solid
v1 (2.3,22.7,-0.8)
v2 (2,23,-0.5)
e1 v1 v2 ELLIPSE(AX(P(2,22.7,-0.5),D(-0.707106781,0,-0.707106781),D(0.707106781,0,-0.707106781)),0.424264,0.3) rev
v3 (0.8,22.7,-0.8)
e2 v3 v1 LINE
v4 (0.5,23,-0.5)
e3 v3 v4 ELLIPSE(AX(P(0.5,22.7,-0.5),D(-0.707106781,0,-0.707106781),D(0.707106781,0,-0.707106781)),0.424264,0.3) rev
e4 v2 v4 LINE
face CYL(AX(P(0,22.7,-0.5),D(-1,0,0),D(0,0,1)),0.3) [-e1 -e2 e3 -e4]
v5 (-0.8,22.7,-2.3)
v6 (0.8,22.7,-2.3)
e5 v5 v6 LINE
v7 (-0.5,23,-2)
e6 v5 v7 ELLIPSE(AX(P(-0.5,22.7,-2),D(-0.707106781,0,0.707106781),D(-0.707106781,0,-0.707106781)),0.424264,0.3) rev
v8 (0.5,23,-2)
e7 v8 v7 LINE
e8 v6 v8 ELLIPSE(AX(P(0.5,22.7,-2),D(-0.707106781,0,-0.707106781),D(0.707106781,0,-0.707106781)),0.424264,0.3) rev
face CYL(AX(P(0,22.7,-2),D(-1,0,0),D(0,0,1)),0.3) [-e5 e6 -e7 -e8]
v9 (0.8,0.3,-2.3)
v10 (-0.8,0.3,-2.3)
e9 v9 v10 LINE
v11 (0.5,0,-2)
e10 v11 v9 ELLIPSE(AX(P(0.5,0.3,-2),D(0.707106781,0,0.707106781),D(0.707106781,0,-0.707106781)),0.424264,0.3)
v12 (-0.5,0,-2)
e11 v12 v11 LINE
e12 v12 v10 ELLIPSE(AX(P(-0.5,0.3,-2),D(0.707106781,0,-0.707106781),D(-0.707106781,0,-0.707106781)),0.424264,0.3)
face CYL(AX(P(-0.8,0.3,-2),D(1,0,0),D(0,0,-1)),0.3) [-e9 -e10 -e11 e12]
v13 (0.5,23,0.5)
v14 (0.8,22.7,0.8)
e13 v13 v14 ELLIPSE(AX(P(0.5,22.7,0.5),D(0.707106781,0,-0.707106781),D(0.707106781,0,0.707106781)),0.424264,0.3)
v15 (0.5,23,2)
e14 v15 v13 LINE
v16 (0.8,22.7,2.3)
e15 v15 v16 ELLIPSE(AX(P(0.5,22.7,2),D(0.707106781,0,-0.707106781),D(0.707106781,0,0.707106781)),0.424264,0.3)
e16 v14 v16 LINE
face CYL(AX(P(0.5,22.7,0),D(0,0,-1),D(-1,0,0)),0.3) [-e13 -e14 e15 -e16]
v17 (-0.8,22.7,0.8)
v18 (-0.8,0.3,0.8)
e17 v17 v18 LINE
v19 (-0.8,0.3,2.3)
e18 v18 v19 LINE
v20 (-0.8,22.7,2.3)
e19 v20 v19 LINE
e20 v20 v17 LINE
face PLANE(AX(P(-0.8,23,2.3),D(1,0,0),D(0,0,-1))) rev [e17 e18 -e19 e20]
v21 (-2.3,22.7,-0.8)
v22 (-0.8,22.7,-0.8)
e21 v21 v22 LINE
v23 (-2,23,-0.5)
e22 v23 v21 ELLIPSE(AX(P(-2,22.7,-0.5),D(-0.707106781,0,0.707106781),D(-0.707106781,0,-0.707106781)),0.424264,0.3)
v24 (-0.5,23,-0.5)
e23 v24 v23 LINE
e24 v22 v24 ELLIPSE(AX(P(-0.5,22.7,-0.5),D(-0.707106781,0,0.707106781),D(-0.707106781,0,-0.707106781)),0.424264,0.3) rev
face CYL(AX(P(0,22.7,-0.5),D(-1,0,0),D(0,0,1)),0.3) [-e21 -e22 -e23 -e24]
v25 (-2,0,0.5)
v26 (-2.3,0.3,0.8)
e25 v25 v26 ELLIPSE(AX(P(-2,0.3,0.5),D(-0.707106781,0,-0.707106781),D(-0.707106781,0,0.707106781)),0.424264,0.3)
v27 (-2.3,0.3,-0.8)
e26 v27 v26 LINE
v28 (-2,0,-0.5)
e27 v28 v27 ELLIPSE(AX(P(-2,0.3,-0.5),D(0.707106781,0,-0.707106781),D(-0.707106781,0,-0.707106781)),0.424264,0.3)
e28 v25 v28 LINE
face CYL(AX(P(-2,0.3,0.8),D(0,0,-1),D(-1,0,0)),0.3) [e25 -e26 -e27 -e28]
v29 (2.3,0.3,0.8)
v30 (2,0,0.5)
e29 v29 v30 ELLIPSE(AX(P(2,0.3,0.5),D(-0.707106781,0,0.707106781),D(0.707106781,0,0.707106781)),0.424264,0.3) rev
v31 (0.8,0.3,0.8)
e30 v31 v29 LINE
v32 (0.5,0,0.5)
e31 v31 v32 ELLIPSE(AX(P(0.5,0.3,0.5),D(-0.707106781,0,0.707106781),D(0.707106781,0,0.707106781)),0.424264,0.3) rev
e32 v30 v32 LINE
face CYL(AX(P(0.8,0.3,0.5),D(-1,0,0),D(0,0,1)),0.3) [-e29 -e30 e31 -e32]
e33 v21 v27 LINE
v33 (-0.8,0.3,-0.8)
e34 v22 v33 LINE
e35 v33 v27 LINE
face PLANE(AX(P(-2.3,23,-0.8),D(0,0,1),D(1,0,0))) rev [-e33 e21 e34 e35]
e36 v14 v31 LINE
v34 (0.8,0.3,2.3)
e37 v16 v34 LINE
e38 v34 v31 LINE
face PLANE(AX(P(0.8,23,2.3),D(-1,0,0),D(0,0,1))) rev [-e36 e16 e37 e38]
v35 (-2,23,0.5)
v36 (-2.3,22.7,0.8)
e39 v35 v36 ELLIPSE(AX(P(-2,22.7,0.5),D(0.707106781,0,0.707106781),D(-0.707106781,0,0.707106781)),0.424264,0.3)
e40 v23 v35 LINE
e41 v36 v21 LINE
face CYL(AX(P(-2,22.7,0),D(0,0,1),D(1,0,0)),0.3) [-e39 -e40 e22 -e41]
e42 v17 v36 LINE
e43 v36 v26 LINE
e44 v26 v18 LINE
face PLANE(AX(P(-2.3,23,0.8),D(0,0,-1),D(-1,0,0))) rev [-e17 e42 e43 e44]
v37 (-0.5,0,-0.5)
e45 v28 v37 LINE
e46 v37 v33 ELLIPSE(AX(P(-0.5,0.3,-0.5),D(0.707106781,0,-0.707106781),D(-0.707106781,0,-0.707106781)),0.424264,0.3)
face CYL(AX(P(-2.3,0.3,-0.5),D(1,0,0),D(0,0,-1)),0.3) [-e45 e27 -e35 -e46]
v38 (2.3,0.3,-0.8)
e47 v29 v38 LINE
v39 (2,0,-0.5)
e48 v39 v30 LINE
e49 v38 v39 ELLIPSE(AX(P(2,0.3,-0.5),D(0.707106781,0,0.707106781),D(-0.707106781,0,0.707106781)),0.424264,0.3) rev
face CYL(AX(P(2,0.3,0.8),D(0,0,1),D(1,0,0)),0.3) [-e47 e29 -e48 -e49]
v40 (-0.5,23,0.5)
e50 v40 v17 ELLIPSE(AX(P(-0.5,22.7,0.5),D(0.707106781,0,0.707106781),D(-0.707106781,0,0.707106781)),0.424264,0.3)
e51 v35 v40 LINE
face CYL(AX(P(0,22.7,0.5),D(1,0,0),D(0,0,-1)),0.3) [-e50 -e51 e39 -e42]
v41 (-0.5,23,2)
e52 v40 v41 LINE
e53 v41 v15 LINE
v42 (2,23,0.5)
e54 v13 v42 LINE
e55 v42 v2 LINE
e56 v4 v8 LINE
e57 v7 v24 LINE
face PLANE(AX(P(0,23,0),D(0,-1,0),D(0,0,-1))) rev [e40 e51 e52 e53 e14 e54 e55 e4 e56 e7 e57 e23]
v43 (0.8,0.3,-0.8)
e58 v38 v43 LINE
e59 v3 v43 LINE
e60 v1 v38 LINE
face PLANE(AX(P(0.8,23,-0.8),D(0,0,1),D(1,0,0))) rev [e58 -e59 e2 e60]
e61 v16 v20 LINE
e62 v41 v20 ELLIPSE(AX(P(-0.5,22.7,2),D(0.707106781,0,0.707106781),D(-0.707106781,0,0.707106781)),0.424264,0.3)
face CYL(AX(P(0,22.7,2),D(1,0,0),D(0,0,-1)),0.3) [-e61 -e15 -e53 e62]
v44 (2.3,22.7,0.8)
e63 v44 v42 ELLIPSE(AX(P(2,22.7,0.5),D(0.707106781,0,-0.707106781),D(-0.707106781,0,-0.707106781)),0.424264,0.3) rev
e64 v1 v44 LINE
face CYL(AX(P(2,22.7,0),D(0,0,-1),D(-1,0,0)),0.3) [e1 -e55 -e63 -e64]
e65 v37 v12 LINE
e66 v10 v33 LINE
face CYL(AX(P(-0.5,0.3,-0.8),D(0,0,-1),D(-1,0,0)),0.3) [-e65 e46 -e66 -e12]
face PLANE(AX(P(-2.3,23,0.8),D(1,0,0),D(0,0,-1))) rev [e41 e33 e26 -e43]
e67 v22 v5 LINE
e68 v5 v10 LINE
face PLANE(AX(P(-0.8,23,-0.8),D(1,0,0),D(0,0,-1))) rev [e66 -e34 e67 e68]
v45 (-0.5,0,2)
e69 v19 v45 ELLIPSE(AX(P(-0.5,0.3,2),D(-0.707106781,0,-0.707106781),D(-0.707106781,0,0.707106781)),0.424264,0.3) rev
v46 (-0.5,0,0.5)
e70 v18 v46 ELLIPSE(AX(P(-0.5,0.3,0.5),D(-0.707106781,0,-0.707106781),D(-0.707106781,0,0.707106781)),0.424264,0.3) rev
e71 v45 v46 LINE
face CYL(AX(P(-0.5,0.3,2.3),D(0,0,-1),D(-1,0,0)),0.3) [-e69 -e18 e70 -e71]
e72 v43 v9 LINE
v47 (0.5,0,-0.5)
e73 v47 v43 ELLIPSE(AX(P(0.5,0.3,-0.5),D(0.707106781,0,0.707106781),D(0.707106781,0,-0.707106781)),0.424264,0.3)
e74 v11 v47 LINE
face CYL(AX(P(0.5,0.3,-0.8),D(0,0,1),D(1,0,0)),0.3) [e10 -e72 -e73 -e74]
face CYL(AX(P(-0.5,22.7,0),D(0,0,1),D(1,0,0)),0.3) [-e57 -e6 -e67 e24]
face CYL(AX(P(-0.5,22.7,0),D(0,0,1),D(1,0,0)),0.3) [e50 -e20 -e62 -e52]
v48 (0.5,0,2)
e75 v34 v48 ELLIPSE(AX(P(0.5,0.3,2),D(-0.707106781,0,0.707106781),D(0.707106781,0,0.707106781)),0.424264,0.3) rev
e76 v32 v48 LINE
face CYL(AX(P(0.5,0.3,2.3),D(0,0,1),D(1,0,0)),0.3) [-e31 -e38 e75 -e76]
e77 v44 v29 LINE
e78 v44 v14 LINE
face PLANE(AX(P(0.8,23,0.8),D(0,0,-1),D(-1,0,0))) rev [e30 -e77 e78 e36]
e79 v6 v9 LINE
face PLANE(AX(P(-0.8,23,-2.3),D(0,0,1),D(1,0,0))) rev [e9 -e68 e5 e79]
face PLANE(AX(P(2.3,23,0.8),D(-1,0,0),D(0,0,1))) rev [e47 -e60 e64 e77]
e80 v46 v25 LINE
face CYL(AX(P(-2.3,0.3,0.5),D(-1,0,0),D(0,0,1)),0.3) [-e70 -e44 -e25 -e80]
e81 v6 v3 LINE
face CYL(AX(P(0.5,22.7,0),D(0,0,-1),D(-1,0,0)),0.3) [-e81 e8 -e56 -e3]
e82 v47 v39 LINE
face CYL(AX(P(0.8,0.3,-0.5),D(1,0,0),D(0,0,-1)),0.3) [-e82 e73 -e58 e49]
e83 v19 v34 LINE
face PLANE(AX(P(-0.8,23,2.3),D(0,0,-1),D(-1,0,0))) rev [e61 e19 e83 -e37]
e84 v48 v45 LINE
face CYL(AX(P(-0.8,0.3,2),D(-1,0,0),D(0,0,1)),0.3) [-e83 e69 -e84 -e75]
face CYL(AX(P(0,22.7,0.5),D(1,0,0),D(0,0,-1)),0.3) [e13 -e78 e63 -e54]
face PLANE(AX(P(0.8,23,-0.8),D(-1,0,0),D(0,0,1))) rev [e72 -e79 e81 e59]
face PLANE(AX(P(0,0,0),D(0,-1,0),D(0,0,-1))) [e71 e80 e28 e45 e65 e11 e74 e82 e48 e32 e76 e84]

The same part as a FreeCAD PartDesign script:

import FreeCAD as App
import Part
import Sketcher
from FreeCAD import Vector
Q = App.Units.Quantity


def edges_at(feature, points):
    """Names of the edges that pass closest to the given points."""
    edges = feature.Shape.Edges
    near = lambda p: min(range(len(edges)), key=lambda i: edges[i].distToShape(Part.Vertex(*p))[0])
    return sorted({f"Edge{near(p) + 1}" for p in points})


def add_polygon(sketch, points):
    """Adds a closed chain of lines whose ends are joined by coincident constraints."""
    first, n = sketch.GeometryCount, len(points)
    for a, b in zip(points, points[1:] + points[:1]):
        sketch.addGeometry(Part.LineSegment(App.Vector(*a, 0), App.Vector(*b, 0)), False)
    for i in range(n):
        sketch.addConstraint(Sketcher.Constraint("Coincident", first + i, 2, first + (i + 1) % n, 1))

doc = App.newDocument("Part")
body = doc.addObject("PartDesign::Body", "Body")

# Sketch on XZ plane
sketch1 = body.newObject("Sketcher::SketchObject", "Sketch")
sketch1.AttachmentSupport = (doc.getObject("XZ_Plane"), [""])
sketch1.MapMode = "FlatFace"
add_polygon(sketch1, [(2.3, -0.8), (0.8, -0.8), (0.8, -2.3), (-0.8, -2.3), (-0.8, -0.8), (-2.3, -0.8), (-2.3, 0.8), (-0.8, 0.8), (-0.8, 2.3), (0.8, 2.3), (0.8, 0.8), (2.3, 0.8)])  # lines 0-11
sketch1.addConstraint([
    Sketcher.Constraint("Horizontal", 0),
    Sketcher.Constraint("Vertical", 1),
    Sketcher.Constraint("Horizontal", 2),
    Sketcher.Constraint("Vertical", 3),
    Sketcher.Constraint("Horizontal", 4),
    Sketcher.Constraint("Vertical", 5),
    Sketcher.Constraint("Horizontal", 6),
    Sketcher.Constraint("Vertical", 7),
    Sketcher.Constraint("Horizontal", 8),
    Sketcher.Constraint("Vertical", 9),
    Sketcher.Constraint("Horizontal", 10),
    Sketcher.Constraint("Vertical", 11),
    Sketcher.Constraint("Symmetric", 0, 2, 6, 2, -1, 1),
    Sketcher.Constraint("Symmetric", 2, 2, 8, 2, -1, 1),
    Sketcher.Constraint("Symmetric", 4, 2, 10, 2, -1, 1),
    Sketcher.Constraint("Symmetric", 0, 2, 3, 2, -2),
    Sketcher.Constraint("Equal", 10, 1),
    Sketcher.Constraint("Equal", 8, 5),
    Sketcher.Constraint("DistanceX", 0, 2, 0, 1, Q("1.5 mm")),
    Sketcher.Constraint("DistanceX", 2, 2, 2, 1, Q("1.6 mm")),
])
pad1 = body.newObject("PartDesign::Pad", "Pad")
pad1.Profile = sketch1
pad1.Length = 23
pad1.Reversed = True
doc.recompute()

fillet = body.newObject("PartDesign::Fillet", "Fillet")
fillet.Base = (pad1, edges_at(pad1, [
    (1.55, 0, 0.8),
    (0.8, 0, 1.55),
    (0.8, 23, -1.55),
    (0, 0, 2.3),
    (-0.8, 0, 1.55),
    (-1.55, 0, 0.8),
    (-2.3, 0, 0),
    (-1.55, 0, -0.8),
    (-0.8, 0, -1.55),
    (0, 0, -2.3),
    (0.8, 0, -1.55),
    (1.55, 0, -0.8),
    (2.3, 0, 0),
    (0, 23, -2.3),
    (-0.8, 23, -1.55),
    (-1.55, 23, -0.8),
    (-2.3, 23, 0),
    (-1.55, 23, 0.8),
    (-0.8, 23, 1.55),
    (0, 23, 2.3),
    (0.8, 23, 1.55),
    (1.55, 23, 0.8),
    (2.3, 23, 0),
    (1.55, 23, -0.8),
]))
fillet.Radius = 0.3

doc.recompute()
